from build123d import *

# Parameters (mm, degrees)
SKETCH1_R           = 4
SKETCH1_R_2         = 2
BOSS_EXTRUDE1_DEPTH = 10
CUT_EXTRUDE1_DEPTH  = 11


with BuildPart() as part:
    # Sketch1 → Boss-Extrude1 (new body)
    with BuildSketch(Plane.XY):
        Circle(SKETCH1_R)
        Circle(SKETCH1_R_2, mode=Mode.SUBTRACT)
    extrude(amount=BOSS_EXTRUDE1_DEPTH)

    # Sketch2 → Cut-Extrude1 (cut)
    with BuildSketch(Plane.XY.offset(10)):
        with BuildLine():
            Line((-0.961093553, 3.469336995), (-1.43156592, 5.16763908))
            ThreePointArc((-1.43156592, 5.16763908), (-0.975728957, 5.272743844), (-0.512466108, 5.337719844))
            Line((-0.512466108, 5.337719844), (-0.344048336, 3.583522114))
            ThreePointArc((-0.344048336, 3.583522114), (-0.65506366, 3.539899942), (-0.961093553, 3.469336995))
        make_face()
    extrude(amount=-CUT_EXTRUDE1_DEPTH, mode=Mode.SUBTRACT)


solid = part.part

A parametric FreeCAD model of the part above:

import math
import FreeCAD as App
import Part
import Sketcher

V = App.Vector
Q = App.Units.Quantity

doc = App.newDocument("Part")
body = doc.addObject("PartDesign::Body", "Body")

sketch1 = body.newObject("Sketcher::SketchObject", "Sketch")
sketch1.AttachmentSupport = (doc.getObject("XY_Plane"), [""])
sketch1.MapMode = "FlatFace"
sketch1.addGeometry(Part.Circle(V(0, 0, 0), V(0, 0, 1), 4), False)
sketch1.addGeometry(Part.Circle(V(0, 0, 0), V(0, 0, 1), 2), False)
sketch1.addConstraint(Sketcher.Constraint("Coincident", 0, 3, -1, 1))
sketch1.addConstraint(Sketcher.Constraint("Coincident", 1, 3, -1, 1))
sketch1.addConstraint(Sketcher.Constraint("Diameter", 0, Q("8 mm")))
sketch1.addConstraint(Sketcher.Constraint("Diameter", 1, Q("4 mm")))
pad1 = body.newObject("PartDesign::Pad", "Pad")
pad1.Profile = sketch1
pad1.Length = 10

sketch2 = body.newObject("Sketcher::SketchObject", "Sketch001")
sketch2.AttachmentSupport = (doc.getObject("XY_Plane"), [""])
sketch2.MapMode = "FlatFace"
sketch2.AttachmentOffset = App.Placement(V(0, 0, 10), App.Rotation())
sketch2.addGeometry(Part.LineSegment(V(-1.4, 5.2, 0), V(-1, 3.5, 0)), False)
sketch2.addGeometry(Part.ArcOfCircle(Part.Circle(V(0, 0, 0), V(0, 0, 1), 3.6), math.radians(95.48), math.radians(105.48)), False)
sketch2.addGeometry(Part.LineSegment(V(-0.3, 3.6, 0), V(-0.5, 5.3, 0)), False)
sketch2.addGeometry(Part.ArcOfCircle(Part.Circle(V(0, 0, 0), V(0, 0, 1), 5.4), math.radians(95.48), math.radians(105.48)), False)
sketch2.addConstraint(Sketcher.Constraint("Coincident", 0, 2, 1, 2))
sketch2.addConstraint(Sketcher.Constraint("Coincident", 1, 1, 2, 1))
sketch2.addConstraint(Sketcher.Constraint("Coincident", 2, 2, 3, 1))
sketch2.addConstraint(Sketcher.Constraint("Coincident", 3, 2, 0, 1))
sketch2.addConstraint(Sketcher.Constraint("Coincident", 1, 3, -1, 1))
sketch2.addConstraint(Sketcher.Constraint("Coincident", 3, 3, -1, 1))
sketch2.addConstraint(Sketcher.Constraint("Radius", 1, Q("3.6 mm")))
sketch2.addConstraint(Sketcher.Constraint("Radius", 3, Q("5.362264 mm")))
sketch2.addConstraint(Sketcher.Constraint("DistanceX", 3, 2, 2, 2, Q("0.9191 mm")))
sketch2.addConstraint(Sketcher.Constraint("DistanceX", 1, 1, -1, 1, Q("0.344048 mm")))
sketch2.addConstraint(Sketcher.Constraint("DistanceY", -1, 1, 2, 2, Q("5.33772 mm")))
sketch2.addConstraint(Sketcher.Constraint("DistanceX", 0, 2, -1, 1, Q("0.961094 mm")))
pocket1 = body.newObject("PartDesign::Pocket", "Pocket")
pocket1.Profile = sketch2
pocket1.Length = 11

doc.recompute()
